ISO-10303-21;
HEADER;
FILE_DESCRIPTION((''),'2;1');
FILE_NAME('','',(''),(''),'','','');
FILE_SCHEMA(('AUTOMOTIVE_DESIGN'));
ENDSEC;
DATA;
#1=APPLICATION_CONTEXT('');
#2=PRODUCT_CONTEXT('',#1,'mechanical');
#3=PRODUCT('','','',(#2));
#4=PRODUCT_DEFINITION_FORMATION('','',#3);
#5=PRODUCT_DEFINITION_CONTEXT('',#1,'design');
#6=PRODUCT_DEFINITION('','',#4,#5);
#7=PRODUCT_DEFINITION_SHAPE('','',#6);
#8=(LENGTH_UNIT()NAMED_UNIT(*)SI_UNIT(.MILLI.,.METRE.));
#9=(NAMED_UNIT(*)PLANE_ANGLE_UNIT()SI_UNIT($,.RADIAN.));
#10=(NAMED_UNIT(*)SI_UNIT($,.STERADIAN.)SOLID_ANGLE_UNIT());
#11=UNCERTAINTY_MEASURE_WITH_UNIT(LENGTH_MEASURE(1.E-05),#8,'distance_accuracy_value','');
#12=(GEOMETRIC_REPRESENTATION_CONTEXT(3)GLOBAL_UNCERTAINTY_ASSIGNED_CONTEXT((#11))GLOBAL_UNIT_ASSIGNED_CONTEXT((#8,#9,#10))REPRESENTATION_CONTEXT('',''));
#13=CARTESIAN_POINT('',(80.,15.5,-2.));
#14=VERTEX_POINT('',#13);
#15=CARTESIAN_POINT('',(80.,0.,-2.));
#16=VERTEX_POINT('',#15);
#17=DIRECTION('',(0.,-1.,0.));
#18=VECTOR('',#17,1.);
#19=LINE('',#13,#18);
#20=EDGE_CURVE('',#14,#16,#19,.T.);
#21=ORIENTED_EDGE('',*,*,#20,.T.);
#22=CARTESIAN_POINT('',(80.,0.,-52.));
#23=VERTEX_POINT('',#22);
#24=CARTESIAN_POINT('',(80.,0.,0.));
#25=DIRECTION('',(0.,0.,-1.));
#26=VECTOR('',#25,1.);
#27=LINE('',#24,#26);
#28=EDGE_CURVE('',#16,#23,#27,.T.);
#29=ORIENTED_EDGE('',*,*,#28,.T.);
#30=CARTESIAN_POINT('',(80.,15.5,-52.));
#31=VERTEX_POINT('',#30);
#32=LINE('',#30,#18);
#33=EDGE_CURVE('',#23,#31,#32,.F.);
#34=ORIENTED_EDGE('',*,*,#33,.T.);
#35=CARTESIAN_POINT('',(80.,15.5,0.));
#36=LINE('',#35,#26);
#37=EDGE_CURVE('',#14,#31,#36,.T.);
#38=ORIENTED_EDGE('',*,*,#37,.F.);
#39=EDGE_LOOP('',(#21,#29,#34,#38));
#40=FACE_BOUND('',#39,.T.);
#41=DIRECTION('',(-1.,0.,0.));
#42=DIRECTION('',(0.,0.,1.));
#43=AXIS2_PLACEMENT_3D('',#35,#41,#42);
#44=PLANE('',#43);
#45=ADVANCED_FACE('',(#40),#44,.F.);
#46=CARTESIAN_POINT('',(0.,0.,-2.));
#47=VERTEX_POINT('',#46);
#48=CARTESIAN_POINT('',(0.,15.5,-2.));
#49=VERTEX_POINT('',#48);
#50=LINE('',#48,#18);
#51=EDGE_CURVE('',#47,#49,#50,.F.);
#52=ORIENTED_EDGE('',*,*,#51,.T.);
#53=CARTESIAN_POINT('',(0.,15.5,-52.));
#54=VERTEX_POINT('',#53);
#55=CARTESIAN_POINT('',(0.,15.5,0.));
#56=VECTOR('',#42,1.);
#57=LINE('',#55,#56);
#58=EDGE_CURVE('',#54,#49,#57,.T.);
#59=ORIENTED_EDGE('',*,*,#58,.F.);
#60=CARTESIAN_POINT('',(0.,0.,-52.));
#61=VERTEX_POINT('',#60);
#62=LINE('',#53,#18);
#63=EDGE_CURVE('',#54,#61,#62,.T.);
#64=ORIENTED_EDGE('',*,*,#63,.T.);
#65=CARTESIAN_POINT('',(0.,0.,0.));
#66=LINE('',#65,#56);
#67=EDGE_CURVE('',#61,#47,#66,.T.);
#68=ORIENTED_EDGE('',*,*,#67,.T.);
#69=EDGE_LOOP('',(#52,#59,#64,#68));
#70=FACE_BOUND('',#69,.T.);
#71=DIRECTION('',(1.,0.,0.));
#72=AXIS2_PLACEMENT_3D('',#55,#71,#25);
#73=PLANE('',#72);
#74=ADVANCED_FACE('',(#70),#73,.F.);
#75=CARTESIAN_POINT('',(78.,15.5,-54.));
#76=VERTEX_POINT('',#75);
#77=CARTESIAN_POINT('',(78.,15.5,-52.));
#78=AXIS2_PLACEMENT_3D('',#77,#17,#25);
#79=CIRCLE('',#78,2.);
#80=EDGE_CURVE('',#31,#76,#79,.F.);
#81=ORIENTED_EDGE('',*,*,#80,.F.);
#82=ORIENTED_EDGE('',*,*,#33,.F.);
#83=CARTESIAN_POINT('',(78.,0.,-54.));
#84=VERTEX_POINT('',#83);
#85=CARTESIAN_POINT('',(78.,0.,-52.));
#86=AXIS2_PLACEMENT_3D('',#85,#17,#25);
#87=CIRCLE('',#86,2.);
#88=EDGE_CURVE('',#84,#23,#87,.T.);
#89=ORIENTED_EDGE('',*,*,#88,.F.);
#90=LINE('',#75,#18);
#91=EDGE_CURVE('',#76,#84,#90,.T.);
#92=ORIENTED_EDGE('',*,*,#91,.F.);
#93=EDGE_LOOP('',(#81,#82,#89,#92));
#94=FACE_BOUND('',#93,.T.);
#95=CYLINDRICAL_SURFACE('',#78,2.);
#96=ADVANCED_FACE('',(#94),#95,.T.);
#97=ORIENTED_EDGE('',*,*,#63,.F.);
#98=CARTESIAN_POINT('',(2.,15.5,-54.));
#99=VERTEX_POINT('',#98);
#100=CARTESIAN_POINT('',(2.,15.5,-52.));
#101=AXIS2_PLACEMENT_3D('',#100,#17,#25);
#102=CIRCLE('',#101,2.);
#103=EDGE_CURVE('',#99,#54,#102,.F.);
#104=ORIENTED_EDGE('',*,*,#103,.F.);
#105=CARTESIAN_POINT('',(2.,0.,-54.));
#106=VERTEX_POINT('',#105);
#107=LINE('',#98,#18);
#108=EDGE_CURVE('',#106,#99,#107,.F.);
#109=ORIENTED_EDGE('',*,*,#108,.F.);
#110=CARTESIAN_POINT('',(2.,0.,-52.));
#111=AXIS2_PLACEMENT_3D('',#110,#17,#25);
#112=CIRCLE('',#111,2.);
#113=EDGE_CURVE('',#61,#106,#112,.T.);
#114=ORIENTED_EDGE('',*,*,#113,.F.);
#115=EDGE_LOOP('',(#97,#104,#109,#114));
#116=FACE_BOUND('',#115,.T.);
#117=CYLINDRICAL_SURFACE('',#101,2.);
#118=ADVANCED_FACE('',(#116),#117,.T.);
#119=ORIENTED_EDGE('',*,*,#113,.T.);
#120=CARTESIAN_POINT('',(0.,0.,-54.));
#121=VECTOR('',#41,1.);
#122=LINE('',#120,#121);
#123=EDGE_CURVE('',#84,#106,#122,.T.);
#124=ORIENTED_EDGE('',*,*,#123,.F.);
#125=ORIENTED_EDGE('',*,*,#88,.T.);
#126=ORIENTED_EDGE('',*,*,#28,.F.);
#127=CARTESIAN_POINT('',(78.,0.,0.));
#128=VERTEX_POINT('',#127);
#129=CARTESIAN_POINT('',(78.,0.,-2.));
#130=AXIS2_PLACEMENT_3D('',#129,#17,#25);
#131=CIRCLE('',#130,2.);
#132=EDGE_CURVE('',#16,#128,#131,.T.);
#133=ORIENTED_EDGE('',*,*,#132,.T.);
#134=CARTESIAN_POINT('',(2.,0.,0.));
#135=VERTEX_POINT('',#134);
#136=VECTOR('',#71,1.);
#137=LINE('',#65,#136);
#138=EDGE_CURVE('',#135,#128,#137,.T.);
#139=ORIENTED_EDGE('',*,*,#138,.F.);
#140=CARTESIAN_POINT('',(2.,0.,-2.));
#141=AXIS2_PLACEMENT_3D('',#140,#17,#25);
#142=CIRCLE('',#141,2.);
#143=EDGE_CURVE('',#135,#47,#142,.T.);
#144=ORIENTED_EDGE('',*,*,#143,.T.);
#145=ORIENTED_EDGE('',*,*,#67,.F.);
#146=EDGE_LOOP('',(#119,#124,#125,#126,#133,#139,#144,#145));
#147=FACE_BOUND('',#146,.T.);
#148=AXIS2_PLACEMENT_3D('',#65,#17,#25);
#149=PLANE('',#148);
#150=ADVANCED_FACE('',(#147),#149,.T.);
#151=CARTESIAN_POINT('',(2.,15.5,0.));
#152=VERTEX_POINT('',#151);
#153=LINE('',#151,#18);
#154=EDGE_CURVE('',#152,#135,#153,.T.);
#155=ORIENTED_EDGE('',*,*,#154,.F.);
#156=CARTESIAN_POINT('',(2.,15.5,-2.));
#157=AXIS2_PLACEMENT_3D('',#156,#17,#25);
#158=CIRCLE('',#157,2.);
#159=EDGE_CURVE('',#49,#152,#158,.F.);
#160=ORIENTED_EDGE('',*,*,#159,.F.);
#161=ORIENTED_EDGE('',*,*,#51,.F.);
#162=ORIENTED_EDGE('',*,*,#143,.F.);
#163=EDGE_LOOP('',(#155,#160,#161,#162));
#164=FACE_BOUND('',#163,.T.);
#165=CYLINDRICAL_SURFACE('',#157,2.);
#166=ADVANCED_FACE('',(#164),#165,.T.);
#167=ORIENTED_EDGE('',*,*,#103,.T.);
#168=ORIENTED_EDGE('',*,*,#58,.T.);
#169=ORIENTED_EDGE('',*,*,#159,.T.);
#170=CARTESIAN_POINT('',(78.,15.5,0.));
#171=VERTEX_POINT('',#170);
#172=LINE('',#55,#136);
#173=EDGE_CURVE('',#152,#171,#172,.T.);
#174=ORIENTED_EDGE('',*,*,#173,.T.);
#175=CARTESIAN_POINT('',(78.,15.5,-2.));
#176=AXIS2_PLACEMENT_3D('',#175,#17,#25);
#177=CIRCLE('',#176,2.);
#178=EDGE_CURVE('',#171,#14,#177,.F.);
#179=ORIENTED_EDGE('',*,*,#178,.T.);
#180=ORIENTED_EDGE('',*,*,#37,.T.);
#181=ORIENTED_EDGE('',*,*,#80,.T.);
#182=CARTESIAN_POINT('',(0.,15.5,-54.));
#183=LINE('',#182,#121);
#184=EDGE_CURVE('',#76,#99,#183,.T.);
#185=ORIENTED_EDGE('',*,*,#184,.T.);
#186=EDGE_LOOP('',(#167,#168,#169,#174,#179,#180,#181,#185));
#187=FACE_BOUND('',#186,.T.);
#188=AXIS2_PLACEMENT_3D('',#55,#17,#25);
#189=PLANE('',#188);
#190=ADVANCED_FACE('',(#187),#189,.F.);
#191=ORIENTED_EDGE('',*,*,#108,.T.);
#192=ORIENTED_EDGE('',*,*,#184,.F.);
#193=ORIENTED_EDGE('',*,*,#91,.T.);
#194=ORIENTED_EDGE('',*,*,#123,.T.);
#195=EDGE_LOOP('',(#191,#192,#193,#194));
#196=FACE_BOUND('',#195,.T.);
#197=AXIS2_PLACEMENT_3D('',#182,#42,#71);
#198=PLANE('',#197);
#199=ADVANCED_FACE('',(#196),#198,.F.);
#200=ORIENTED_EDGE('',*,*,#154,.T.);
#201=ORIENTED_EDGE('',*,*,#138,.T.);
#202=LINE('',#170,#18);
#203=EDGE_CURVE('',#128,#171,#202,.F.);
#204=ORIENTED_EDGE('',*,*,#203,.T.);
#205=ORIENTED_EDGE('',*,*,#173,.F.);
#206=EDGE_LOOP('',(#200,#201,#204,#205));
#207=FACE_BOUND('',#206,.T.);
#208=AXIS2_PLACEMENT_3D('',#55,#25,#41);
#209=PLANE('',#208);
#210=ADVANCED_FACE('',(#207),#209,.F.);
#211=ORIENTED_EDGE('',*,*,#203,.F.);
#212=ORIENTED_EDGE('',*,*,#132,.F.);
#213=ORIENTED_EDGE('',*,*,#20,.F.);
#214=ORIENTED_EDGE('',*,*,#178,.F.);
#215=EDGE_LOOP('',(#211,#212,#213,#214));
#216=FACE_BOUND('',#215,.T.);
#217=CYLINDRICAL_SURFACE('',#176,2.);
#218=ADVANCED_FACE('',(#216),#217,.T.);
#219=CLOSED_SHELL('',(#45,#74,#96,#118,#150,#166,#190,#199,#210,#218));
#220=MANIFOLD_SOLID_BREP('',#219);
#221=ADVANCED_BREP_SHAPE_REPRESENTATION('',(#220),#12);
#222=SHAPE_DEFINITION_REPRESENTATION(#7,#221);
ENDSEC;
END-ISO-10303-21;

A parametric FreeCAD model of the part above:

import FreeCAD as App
import Part
import Sketcher

V = App.Vector
Q = App.Units.Quantity


def edges_at(feature, points):
    """Names of the edges that pass closest to the given points."""
    edges = feature.Shape.Edges
    near = lambda p: min(range(len(edges)), key=lambda i: edges[i].distToShape(Part.Vertex(*p))[0])
    return sorted({f"Edge{near(p) + 1}" for p in points})


def add_polygon(sketch, points):
    """Adds a closed chain of lines whose ends are joined by coincident constraints."""
    first, n = sketch.GeometryCount, len(points)
    for a, b in zip(points, points[1:] + points[:1]):
        sketch.addGeometry(Part.LineSegment(App.Vector(*a, 0), App.Vector(*b, 0)), False)
    for i in range(n):
        sketch.addConstraint(Sketcher.Constraint("Coincident", first + i, 2, first + (i + 1) % n, 1))

doc = App.newDocument("Part")
body = doc.addObject("PartDesign::Body", "Body")

# Sketch on XZ plane
sketch1 = body.newObject("Sketcher::SketchObject", "Sketch")
sketch1.AttachmentSupport = (doc.getObject("XZ_Plane"), [""])
sketch1.MapMode = "FlatFace"
add_polygon(sketch1, [(0, -54), (0, 0), (80, 0), (80, -54)])  # lines 0-3
sketch1.addConstraint([
    Sketcher.Constraint("Vertical", 0),
    Sketcher.Constraint("Horizontal", 1),
    Sketcher.Constraint("Vertical", 2),
    Sketcher.Constraint("Horizontal", 3),
    Sketcher.Constraint("Coincident", 0, 2, -1, 1),
    Sketcher.Constraint("DistanceX", 1, 1, 1, 2, Q("80 mm")),
    Sketcher.Constraint("DistanceY", 0, 1, 0, 2, Q("54 mm")),
])
pad1 = body.newObject("PartDesign::Pad", "Pad")
pad1.Profile = sketch1
pad1.Length = 15.5
pad1.Reversed = True
doc.recompute()

fillet = body.newObject("PartDesign::Fillet", "Fillet")
fillet.Base = (pad1, edges_at(pad1, [
    (0, 7.75, -54),
    (80, 7.75, -54),
    (80, 7.75, 0),
    (0, 7.75, 0),
]))
fillet.Radius = 2

doc.recompute()
